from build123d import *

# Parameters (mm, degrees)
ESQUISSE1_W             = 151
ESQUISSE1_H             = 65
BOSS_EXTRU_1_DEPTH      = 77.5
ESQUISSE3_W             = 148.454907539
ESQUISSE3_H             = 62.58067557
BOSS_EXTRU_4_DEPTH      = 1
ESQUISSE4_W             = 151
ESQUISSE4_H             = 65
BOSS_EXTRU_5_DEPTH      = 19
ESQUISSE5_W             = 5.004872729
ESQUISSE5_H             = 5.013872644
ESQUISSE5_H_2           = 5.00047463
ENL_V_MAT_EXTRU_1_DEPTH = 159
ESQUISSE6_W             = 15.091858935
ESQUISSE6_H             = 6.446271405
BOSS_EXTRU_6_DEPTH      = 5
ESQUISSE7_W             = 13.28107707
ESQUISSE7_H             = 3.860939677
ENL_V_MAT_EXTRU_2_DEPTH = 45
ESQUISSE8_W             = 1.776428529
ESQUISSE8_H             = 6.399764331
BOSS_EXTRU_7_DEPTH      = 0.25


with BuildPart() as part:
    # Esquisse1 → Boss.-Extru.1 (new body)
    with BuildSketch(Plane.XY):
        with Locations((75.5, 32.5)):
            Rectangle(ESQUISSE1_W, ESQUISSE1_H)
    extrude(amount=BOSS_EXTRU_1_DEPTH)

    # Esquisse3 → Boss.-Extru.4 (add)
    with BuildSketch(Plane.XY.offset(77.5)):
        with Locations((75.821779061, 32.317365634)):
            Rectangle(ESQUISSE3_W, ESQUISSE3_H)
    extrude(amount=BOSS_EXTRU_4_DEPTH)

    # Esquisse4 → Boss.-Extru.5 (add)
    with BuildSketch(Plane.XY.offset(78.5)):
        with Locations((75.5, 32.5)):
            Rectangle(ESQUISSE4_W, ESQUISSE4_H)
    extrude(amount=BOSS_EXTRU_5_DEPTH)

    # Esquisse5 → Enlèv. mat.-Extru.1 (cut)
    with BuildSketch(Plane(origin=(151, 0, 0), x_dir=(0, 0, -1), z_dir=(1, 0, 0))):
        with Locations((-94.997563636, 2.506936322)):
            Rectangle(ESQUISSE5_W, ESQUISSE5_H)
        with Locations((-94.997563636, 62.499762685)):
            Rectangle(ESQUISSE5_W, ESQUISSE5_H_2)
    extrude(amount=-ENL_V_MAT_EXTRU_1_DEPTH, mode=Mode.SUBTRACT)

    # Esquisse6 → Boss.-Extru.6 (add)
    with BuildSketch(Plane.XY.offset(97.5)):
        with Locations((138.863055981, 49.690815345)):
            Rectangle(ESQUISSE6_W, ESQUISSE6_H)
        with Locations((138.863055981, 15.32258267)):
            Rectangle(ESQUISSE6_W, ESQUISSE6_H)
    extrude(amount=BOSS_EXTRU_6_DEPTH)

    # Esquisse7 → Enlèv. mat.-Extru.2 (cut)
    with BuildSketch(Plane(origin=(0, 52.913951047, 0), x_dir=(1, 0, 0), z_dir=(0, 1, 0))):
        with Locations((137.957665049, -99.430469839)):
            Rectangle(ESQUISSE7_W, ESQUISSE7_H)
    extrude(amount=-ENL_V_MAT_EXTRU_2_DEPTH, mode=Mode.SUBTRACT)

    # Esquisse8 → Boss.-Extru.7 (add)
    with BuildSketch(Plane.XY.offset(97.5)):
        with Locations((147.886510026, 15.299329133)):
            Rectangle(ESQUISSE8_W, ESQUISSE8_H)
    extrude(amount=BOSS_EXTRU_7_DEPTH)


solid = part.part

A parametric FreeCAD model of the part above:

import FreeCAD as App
import Part
import Sketcher

V = App.Vector

doc = App.newDocument("Part")
body = doc.addObject("PartDesign::Body", "Body")

# Sketch on XY plane
sketch1 = body.newObject("Sketcher::SketchObject", "Sketch")
sketch1.AttachmentSupport = (doc.getObject("XY_Plane"), [""])
sketch1.MapMode = "FlatFace"
sketch1.addGeometry([
    Part.LineSegment(V(0, 65, 0), V(0, 0, 0)),
    Part.LineSegment(V(0, 0, 0), V(151, 0, 0)),
    Part.LineSegment(V(151, 0, 0), V(151, 65, 0)),
    Part.LineSegment(V(151, 65, 0), V(0, 65, 0)),
], False)
sketch1.addConstraint([
    Sketcher.Constraint("Coincident", 0, 2, 1, 1),
    Sketcher.Constraint("Coincident", 1, 2, 2, 1),
    Sketcher.Constraint("Coincident", 2, 2, 3, 1),
    Sketcher.Constraint("Coincident", 3, 2, 0, 1),
    Sketcher.Constraint("Vertical", 0),
    Sketcher.Constraint("Horizontal", 1),
    Sketcher.Constraint("Vertical", 2),
    Sketcher.Constraint("Horizontal", 3),
    Sketcher.Constraint("Coincident", 0, 2, -1, 1),
    Sketcher.Constraint("DistanceX", 1, 1, 1, 2, 151.0),
    Sketcher.Constraint("DistanceY", 0, 2, 0, 1, 65.0),
])
pad1 = body.newObject("PartDesign::Pad", "Pad")
pad1.Profile = sketch1
pad1.Length = 77.5

# Sketch on XY plane
sketch2 = body.newObject("Sketcher::SketchObject", "Sketch001")
sketch2.AttachmentSupport = (doc.getObject("XY_Plane"), [""])
sketch2.MapMode = "FlatFace"
sketch2.AttachmentOffset = App.Placement(V(0, 0, 77.5), App.Rotation())
sketch2.addGeometry([
    Part.LineSegment(V(2, 64, 0), V(2, 1, 0)),
    Part.LineSegment(V(2, 1, 0), V(150, 1, 0)),
    Part.LineSegment(V(150, 1, 0), V(150, 64, 0)),
    Part.LineSegment(V(150, 64, 0), V(2, 64, 0)),
], False)
sketch2.addConstraint([
    Sketcher.Constraint("Coincident", 0, 2, 1, 1),
    Sketcher.Constraint("Coincident", 1, 2, 2, 1),
    Sketcher.Constraint("Coincident", 2, 2, 3, 1),
    Sketcher.Constraint("Coincident", 3, 2, 0, 1),
    Sketcher.Constraint("Vertical", 0),
    Sketcher.Constraint("Horizontal", 1),
    Sketcher.Constraint("Vertical", 2),
    Sketcher.Constraint("Horizontal", 3),
    Sketcher.Constraint("DistanceX", 1, 1, 1, 2, 148.454908),
    Sketcher.Constraint("DistanceY", 0, 2, 0, 1, 62.580676),
    Sketcher.Constraint("DistanceX", -1, 1, 0, 2, 1.594325),
    Sketcher.Constraint("DistanceY", -1, 1, 0, 2, 1.027028),
])
pad2 = body.newObject("PartDesign::Pad", "Pad001")
pad2.Profile = sketch2
pad2.Length = 1

# Sketch on XY plane
sketch3 = body.newObject("Sketcher::SketchObject", "Sketch002")
sketch3.AttachmentSupport = (doc.getObject("XY_Plane"), [""])
sketch3.MapMode = "FlatFace"
sketch3.AttachmentOffset = App.Placement(V(0, 0, 78.5), App.Rotation())
sketch3.addGeometry([
    Part.LineSegment(V(0, 65, 0), V(0, 0, 0)),
    Part.LineSegment(V(0, 0, 0), V(151, 0, 0)),
    Part.LineSegment(V(151, 0, 0), V(151, 65, 0)),
    Part.LineSegment(V(151, 65, 0), V(0, 65, 0)),
], False)
sketch3.addConstraint([
    Sketcher.Constraint("Coincident", 0, 2, 1, 1),
    Sketcher.Constraint("Coincident", 1, 2, 2, 1),
    Sketcher.Constraint("Coincident", 2, 2, 3, 1),
    Sketcher.Constraint("Coincident", 3, 2, 0, 1),
    Sketcher.Constraint("Vertical", 0),
    Sketcher.Constraint("Horizontal", 1),
    Sketcher.Constraint("Vertical", 2),
    Sketcher.Constraint("Horizontal", 3),
    Sketcher.Constraint("Coincident", 0, 2, -1, 1),
    Sketcher.Constraint("DistanceX", 1, 1, 1, 2, 151.0),
    Sketcher.Constraint("DistanceY", 0, 2, 0, 1, 65.0),
])
pad3 = body.newObject("PartDesign::Pad", "Pad002")
pad3.Profile = sketch3
pad3.Length = 19

# Sketch on YZ plane
sketch4 = body.newObject("Sketcher::SketchObject", "Sketch003")
sketch4.AttachmentSupport = (doc.getObject("YZ_Plane"), [""])
sketch4.MapMode = "FlatFace"
sketch4.AttachmentOffset = App.Placement(V(0, 0, 151), App.Rotation())
sketch4.addGeometry([
    Part.LineSegment(V(5, 98, 0), V(0, 98, 0)),  # 0
    Part.LineSegment(V(0, 98, 0), V(0, 92, 0)),  # 1
    Part.LineSegment(V(0, 92, 0), V(5, 92, 0)),  # 2
    Part.LineSegment(V(5, 92, 0), V(5, 98, 0)),  # 3
    Part.LineSegment(V(65, 98, 0), V(60, 98, 0)),  # 4
    Part.LineSegment(V(60, 98, 0), V(60, 92, 0)),  # 5
    Part.LineSegment(V(60, 92, 0), V(65, 92, 0)),  # 6
    Part.LineSegment(V(65, 92, 0), V(65, 98, 0)),  # 7
], False)
sketch4.addConstraint([
    Sketcher.Constraint("Coincident", 0, 2, 1, 1),
    Sketcher.Constraint("Coincident", 1, 2, 2, 1),
    Sketcher.Constraint("Coincident", 2, 2, 3, 1),
    Sketcher.Constraint("Coincident", 3, 2, 0, 1),
    Sketcher.Constraint("Coincident", 4, 2, 5, 1),
    Sketcher.Constraint("Coincident", 5, 2, 6, 1),
    Sketcher.Constraint("Coincident", 6, 2, 7, 1),
    Sketcher.Constraint("Coincident", 7, 2, 4, 1),
    Sketcher.Constraint("Horizontal", 0),
    Sketcher.Constraint("Vertical", 1),
    Sketcher.Constraint("Horizontal", 2),
    Sketcher.Constraint("Vertical", 3),
    Sketcher.Constraint("Horizontal", 4),
    Sketcher.Constraint("Vertical", 5),
    Sketcher.Constraint("Horizontal", 6),
    Sketcher.Constraint("Vertical", 7),
    Sketcher.Constraint("PointOnObject", 0, 2, -2),
    Sketcher.Constraint("Horizontal", 3, 2, 4, 2),
    Sketcher.Constraint("Horizontal", 2, 2, 5, 2),
    Sketcher.Constraint("DistanceX", -1, 1, 6, 2, 65.0),
    Sketcher.Constraint("DistanceY", -1, 1, 0, 2, 97.5),
    Sketcher.Constraint("DistanceX", 0, 2, 0, 1, 5.013873),
    Sketcher.Constraint("DistanceX", 4, 2, 4, 1, 5.000475),
    Sketcher.Constraint("DistanceY", 1, 2, 1, 1, 5.004873),
])
pocket1 = body.newObject("PartDesign::Pocket", "Pocket")
pocket1.Profile = sketch4
pocket1.Length = 159

# Sketch on XY plane
sketch5 = body.newObject("Sketcher::SketchObject", "Sketch004")
sketch5.AttachmentSupport = (doc.getObject("XY_Plane"), [""])
sketch5.MapMode = "FlatFace"
sketch5.AttachmentOffset = App.Placement(V(0, 0, 97.5), App.Rotation())
sketch5.addGeometry([
    Part.LineSegment(V(131, 53, 0), V(131, 46, 0)),  # 0
    Part.LineSegment(V(131, 46, 0), V(146, 46, 0)),  # 1
    Part.LineSegment(V(146, 46, 0), V(146, 53, 0)),  # 2
    Part.LineSegment(V(146, 53, 0), V(131, 53, 0)),  # 3
    Part.LineSegment(V(131, 19, 0), V(131, 12, 0)),  # 4
    Part.LineSegment(V(131, 12, 0), V(146, 12, 0)),  # 5
    Part.LineSegment(V(146, 12, 0), V(146, 19, 0)),  # 6
    Part.LineSegment(V(146, 19, 0), V(131, 19, 0)),  # 7
], False)
sketch5.addConstraint([
    Sketcher.Constraint("Coincident", 0, 2, 1, 1),
    Sketcher.Constraint("Coincident", 1, 2, 2, 1),
    Sketcher.Constraint("Coincident", 2, 2, 3, 1),
    Sketcher.Constraint("Coincident", 3, 2, 0, 1),
    Sketcher.Constraint("Coincident", 4, 2, 5, 1),
    Sketcher.Constraint("Coincident", 5, 2, 6, 1),
    Sketcher.Constraint("Coincident", 6, 2, 7, 1),
    Sketcher.Constraint("Coincident", 7, 2, 4, 1),
    Sketcher.Constraint("Vertical", 0),
    Sketcher.Constraint("Horizontal", 1),
    Sketcher.Constraint("Vertical", 2),
    Sketcher.Constraint("Horizontal", 3),
    Sketcher.Constraint("Vertical", 4),
    Sketcher.Constraint("Horizontal", 5),
    Sketcher.Constraint("Vertical", 6),
    Sketcher.Constraint("Horizontal", 7),
    Sketcher.Constraint("Vertical", 3, 2, 4, 2),
    Sketcher.Constraint("Vertical", 2, 2, 5, 2),
    Sketcher.Constraint("Equal", 2, 4),
    Sketcher.Constraint("DistanceX", 1, 1, 1, 2, 15.091859),
    Sketcher.Constraint("DistanceY", 0, 2, 0, 1, 6.446271),
    Sketcher.Constraint("DistanceY", -1, 1, 0, 2, 46.46768),
    Sketcher.Constraint("DistanceY", -1, 1, 6, 2, 18.545718),
    Sketcher.Constraint("DistanceX", -1, 1, 0, 2, 131.317127),
])
pad4 = body.newObject("PartDesign::Pad", "Pad003")
pad4.Profile = sketch5
pad4.Length = 5

# Sketch on XZ plane
sketch6 = body.newObject("Sketcher::SketchObject", "Sketch005")
sketch6.AttachmentSupport = (doc.getObject("XZ_Plane"), [""])
sketch6.MapMode = "FlatFace"
sketch6.AttachmentOffset = App.Placement(V(0, 0, -52.913951), App.Rotation())
sketch6.addGeometry([
    Part.LineSegment(V(131.3, 97.5, 0), V(131.3, 101.4, 0)),
    Part.LineSegment(V(131.3, 101.4, 0), V(144.6, 101.4, 0)),
    Part.LineSegment(V(144.6, 101.4, 0), V(144.6, 97.5, 0)),
    Part.LineSegment(V(144.6, 97.5, 0), V(131.3, 97.5, 0)),
], False)
sketch6.addConstraint([
    Sketcher.Constraint("Coincident", 0, 2, 1, 1),
    Sketcher.Constraint("Coincident", 1, 2, 2, 1),
    Sketcher.Constraint("Coincident", 2, 2, 3, 1),
    Sketcher.Constraint("Coincident", 3, 2, 0, 1),
    Sketcher.Constraint("Vertical", 0),
    Sketcher.Constraint("Horizontal", 1),
    Sketcher.Constraint("Vertical", 2),
    Sketcher.Constraint("Horizontal", 3),
    Sketcher.Constraint("DistanceY", -1, 1, 2, 2, 97.5),
    Sketcher.Constraint("DistanceY", 0, 1, 0, 2, 3.86094),
    Sketcher.Constraint("DistanceX", 1, 1, 1, 2, 13.281077),
    Sketcher.Constraint("DistanceX", -1, 1, 0, 2, 131.317127),
])
pocket2 = body.newObject("PartDesign::Pocket", "Pocket001")
pocket2.Profile = sketch6
pocket2.Length = 45
pocket2.Reversed = True

# Sketch on XY plane
sketch7 = body.newObject("Sketcher::SketchObject", "Sketch006")
sketch7.AttachmentSupport = (doc.getObject("XY_Plane"), [""])
sketch7.MapMode = "FlatFace"
sketch7.AttachmentOffset = App.Placement(V(0, 0, 97.5), App.Rotation())
sketch7.addGeometry([
    Part.LineSegment(V(147, 18.5, 0), V(147, 12.1, 0)),
    Part.LineSegment(V(147, 12.1, 0), V(148.8, 12.1, 0)),
    Part.LineSegment(V(148.8, 12.1, 0), V(148.8, 18.5, 0)),
    Part.LineSegment(V(148.8, 18.5, 0), V(147, 18.5, 0)),
], False)
sketch7.addConstraint([
    Sketcher.Constraint("Coincident", 0, 2, 1, 1),
    Sketcher.Constraint("Coincident", 1, 2, 2, 1),
    Sketcher.Constraint("Coincident", 2, 2, 3, 1),
    Sketcher.Constraint("Coincident", 3, 2, 0, 1),
    Sketcher.Constraint("Vertical", 0),
    Sketcher.Constraint("Horizontal", 1),
    Sketcher.Constraint("Vertical", 2),
    Sketcher.Constraint("Horizontal", 3),
    Sketcher.Constraint("DistanceX", 1, 1, 1, 2, 1.776429),
    Sketcher.Constraint("DistanceY", 0, 2, 0, 1, 6.399764),
    Sketcher.Constraint("DistanceY", -1, 1, 2, 2, 18.499211),
    Sketcher.Constraint("DistanceX", -1, 1, 0, 2, 146.998296),
])
pad5 = body.newObject("PartDesign::Pad", "Pad004")
pad5.Profile = sketch7
pad5.Length = 0.25

doc.recompute()
